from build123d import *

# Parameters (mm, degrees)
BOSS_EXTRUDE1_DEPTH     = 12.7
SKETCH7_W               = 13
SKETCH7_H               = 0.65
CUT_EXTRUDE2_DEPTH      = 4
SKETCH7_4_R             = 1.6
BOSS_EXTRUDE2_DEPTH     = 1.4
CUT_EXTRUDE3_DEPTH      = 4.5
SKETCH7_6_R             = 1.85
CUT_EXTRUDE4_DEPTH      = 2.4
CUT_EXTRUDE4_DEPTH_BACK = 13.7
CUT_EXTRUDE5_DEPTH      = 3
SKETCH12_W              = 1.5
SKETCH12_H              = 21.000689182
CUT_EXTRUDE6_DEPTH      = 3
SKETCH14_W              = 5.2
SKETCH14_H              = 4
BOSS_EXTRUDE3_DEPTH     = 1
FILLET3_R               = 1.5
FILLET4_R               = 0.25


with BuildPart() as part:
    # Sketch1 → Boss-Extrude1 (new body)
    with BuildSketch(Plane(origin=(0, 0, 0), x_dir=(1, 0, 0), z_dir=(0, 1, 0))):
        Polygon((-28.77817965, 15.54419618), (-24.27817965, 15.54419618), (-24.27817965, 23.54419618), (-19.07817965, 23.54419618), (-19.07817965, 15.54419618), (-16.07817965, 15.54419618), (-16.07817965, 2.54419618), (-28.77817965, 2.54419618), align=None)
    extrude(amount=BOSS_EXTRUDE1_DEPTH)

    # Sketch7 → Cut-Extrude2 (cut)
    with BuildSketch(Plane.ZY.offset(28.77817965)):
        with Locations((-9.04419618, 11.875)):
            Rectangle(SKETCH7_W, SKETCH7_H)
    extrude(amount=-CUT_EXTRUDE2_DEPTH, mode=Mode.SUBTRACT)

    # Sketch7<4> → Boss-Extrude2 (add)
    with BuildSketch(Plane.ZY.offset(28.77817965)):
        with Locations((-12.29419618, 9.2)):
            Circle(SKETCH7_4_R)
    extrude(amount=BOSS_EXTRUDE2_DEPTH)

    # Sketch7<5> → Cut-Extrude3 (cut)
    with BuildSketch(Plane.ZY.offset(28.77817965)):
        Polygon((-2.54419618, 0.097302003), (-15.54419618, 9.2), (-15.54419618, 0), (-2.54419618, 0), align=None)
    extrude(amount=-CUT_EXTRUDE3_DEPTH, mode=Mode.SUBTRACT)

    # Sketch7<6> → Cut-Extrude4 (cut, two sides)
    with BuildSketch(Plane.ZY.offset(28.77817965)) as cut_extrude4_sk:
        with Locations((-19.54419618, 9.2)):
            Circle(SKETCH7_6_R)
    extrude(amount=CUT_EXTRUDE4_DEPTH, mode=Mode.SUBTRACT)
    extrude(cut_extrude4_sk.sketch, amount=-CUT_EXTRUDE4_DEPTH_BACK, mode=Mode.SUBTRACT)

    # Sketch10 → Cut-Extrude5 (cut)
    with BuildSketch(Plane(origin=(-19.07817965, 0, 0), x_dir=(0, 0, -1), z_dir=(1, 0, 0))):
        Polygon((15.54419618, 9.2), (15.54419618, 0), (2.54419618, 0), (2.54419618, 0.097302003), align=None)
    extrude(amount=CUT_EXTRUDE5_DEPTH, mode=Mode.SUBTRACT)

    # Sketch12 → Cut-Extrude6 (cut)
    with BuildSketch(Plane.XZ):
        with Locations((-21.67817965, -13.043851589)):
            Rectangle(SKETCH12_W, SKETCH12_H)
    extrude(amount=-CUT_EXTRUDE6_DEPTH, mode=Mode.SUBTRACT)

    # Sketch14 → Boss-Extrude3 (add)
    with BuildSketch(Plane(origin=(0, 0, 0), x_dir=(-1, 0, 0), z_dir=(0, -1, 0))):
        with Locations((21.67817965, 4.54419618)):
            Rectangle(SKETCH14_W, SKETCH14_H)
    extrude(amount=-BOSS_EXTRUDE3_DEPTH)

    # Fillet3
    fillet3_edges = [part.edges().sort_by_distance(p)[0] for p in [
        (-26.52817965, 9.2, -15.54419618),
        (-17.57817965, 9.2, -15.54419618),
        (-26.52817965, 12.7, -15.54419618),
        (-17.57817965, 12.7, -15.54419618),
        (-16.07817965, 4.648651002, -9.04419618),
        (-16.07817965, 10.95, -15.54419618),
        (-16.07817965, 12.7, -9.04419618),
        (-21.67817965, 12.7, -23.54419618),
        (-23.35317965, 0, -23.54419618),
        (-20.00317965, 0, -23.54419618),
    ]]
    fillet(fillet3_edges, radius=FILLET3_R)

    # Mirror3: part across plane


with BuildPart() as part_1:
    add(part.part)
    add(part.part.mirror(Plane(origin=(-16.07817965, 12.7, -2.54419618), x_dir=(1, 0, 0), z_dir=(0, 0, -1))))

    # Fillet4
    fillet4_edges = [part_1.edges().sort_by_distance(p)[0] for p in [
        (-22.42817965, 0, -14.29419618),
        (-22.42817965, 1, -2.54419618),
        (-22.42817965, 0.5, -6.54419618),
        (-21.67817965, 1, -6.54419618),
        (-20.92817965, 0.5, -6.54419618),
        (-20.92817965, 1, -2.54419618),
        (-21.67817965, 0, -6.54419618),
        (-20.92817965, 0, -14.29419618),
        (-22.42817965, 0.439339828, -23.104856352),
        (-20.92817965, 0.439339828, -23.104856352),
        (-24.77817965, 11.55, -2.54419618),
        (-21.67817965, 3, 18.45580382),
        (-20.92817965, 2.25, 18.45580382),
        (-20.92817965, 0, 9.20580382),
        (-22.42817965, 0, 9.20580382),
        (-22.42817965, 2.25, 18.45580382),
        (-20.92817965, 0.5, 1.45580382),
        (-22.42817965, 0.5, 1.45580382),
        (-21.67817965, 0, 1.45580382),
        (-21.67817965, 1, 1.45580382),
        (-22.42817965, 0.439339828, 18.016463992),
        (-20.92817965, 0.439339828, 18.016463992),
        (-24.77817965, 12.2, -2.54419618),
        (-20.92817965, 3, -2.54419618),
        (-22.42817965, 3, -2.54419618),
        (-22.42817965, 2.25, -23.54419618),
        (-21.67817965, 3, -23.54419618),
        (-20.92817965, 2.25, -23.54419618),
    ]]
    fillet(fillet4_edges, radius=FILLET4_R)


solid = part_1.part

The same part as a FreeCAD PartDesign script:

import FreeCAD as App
import Part
import Sketcher
from FreeCAD import Vector
Q = App.Units.Quantity


def edges_at(feature, points):
    """Names of the edges that pass closest to the given points."""
    edges = feature.Shape.Edges
    near = lambda p: min(range(len(edges)), key=lambda i: edges[i].distToShape(Part.Vertex(*p))[0])
    return sorted({f"Edge{near(p) + 1}" for p in points})


def add_polygon(sketch, points):
    """Adds a closed chain of lines whose ends are joined by coincident constraints."""
    first, n = sketch.GeometryCount, len(points)
    for a, b in zip(points, points[1:] + points[:1]):
        sketch.addGeometry(Part.LineSegment(App.Vector(*a, 0), App.Vector(*b, 0)), False)
    for i in range(n):
        sketch.addConstraint(Sketcher.Constraint("Coincident", first + i, 2, first + (i + 1) % n, 1))

doc = App.newDocument("Part")
body = doc.addObject("PartDesign::Body", "Body")

# Sketch on XZ plane
sketch1 = body.newObject("Sketcher::SketchObject", "Sketch")
sketch1.AttachmentSupport = (doc.getObject("XZ_Plane"), [""])
sketch1.MapMode = "FlatFace"
add_polygon(sketch1, [(-24.3, -15.5), (-28.8, -15.5), (-28.8, -2.5), (-16.1, -2.5), (-16.1, -15.5), (-19.1, -15.5), (-19.1, -23.5), (-24.3, -23.5)])  # lines 0-7
sketch1.addConstraint(Sketcher.Constraint("Horizontal", 0))
sketch1.addConstraint(Sketcher.Constraint("Vertical", 1))
sketch1.addConstraint(Sketcher.Constraint("Horizontal", 2))
sketch1.addConstraint(Sketcher.Constraint("Vertical", 3))
sketch1.addConstraint(Sketcher.Constraint("Horizontal", 4))
sketch1.addConstraint(Sketcher.Constraint("Vertical", 5))
sketch1.addConstraint(Sketcher.Constraint("Horizontal", 6))
sketch1.addConstraint(Sketcher.Constraint("Vertical", 7))
sketch1.addConstraint(Sketcher.Constraint("Horizontal", 0, 2, 3, 2))
sketch1.addConstraint(Sketcher.Constraint("DistanceX", 4, 2, 4, 1, Q("3 mm")))
sketch1.addConstraint(Sketcher.Constraint("DistanceY", 1, 1, 1, 2, Q("13 mm")))
sketch1.addConstraint(Sketcher.Constraint("DistanceY", 5, 2, 5, 1, Q("8 mm")))
sketch1.addConstraint(Sketcher.Constraint("DistanceX", 0, 2, 0, 1, Q("4.5 mm")))
sketch1.addConstraint(Sketcher.Constraint("DistanceX", 2, 1, 2, 2, Q("12.7 mm")))
sketch1.addConstraint(Sketcher.Constraint("DistanceX", 0, 2, -1, 1, Q("28.77818 mm")))
sketch1.addConstraint(Sketcher.Constraint("DistanceY", 0, 2, -1, 1, Q("15.544196 mm")))
pad1 = body.newObject("PartDesign::Pad", "Pad")
pad1.Profile = sketch1
pad1.Length = 12.7
pad1.Reversed = True

# Sketch on YZ plane
sketch2 = body.newObject("Sketcher::SketchObject", "Sketch001")
sketch2.AttachmentSupport = (doc.getObject("YZ_Plane"), [""])
sketch2.MapMode = "FlatFace"
sketch2.AttachmentOffset = App.Placement(Vector(0, 0, -28.77818), App.Rotation())
add_polygon(sketch2, [(12.2, -15.5), (11.6, -15.5), (11.6, -2.5), (12.2, -2.5)])  # lines 0-3
sketch2.addConstraint(Sketcher.Constraint("Horizontal", 0))
sketch2.addConstraint(Sketcher.Constraint("Vertical", 1))
sketch2.addConstraint(Sketcher.Constraint("Horizontal", 2))
sketch2.addConstraint(Sketcher.Constraint("Vertical", 3))
sketch2.addConstraint(Sketcher.Constraint("DistanceY", 1, 1, 1, 2, Q("13 mm")))
sketch2.addConstraint(Sketcher.Constraint("DistanceX", 0, 2, 0, 1, Q("0.65 mm")))
sketch2.addConstraint(Sketcher.Constraint("DistanceX", -1, 1, 2, 2, Q("12.2 mm")))
sketch2.addConstraint(Sketcher.Constraint("DistanceY", 0, 2, -1, 1, Q("15.544196 mm")))
pocket1 = body.newObject("PartDesign::Pocket", "Pocket")
pocket1.Profile = sketch2
pocket1.Length = 4
pocket1.Reversed = True

# Sketch on YZ plane
sketch3 = body.newObject("Sketcher::SketchObject", "Sketch002")
sketch3.AttachmentSupport = (doc.getObject("YZ_Plane"), [""])
sketch3.MapMode = "FlatFace"
sketch3.AttachmentOffset = App.Placement(Vector(0, 0, -28.77818), App.Rotation())
sketch3.addGeometry(Part.Circle(Vector(9.2, -12.3, 0), Vector(0, 0, 1), 1.6), False)
sketch3.addConstraint(Sketcher.Constraint("Diameter", 0, Q("3.2 mm")))
sketch3.addConstraint(Sketcher.Constraint("DistanceX", -1, 1, 0, 3, Q("9.2 mm")))
sketch3.addConstraint(Sketcher.Constraint("DistanceY", 0, 3, -1, 1, Q("12.294196 mm")))
pad2 = body.newObject("PartDesign::Pad", "Pad001")
pad2.Profile = sketch3
pad2.Length = 1.4
pad2.Reversed = True

# Sketch on YZ plane
sketch4 = body.newObject("Sketcher::SketchObject", "Sketch003")
sketch4.AttachmentSupport = (doc.getObject("YZ_Plane"), [""])
sketch4.MapMode = "FlatFace"
sketch4.AttachmentOffset = App.Placement(Vector(0, 0, -28.77818), App.Rotation())
add_polygon(sketch4, [(0.1, -2.54), (9.2, -15.54), (0, -15.54), (0, -2.54)])  # lines 0-3
sketch4.addConstraint(Sketcher.Constraint("Horizontal", 1))
sketch4.addConstraint(Sketcher.Constraint("Vertical", 2))
sketch4.addConstraint(Sketcher.Constraint("Horizontal", 3))
sketch4.addConstraint(Sketcher.Constraint("PointOnObject", 1, 2, -2))
sketch4.addConstraint(Sketcher.Constraint("DistanceY", 2, 1, 2, 2, Q("13 mm")))
sketch4.addConstraint(Sketcher.Constraint("Angle", 0, Q("-55 deg")))
sketch4.addConstraint(Sketcher.Constraint("DistanceX", 1, 2, 1, 1, Q("9.2 mm")))
sketch4.addConstraint(Sketcher.Constraint("DistanceY", 0, 2, -1, 1, Q("15.544196 mm")))
pocket2 = body.newObject("PartDesign::Pocket", "Pocket001")
pocket2.Profile = sketch4
pocket2.Length = 4.5
pocket2.Reversed = True

# Sketch on YZ plane
sketch5 = body.newObject("Sketcher::SketchObject", "Sketch004")
sketch5.AttachmentSupport = (doc.getObject("YZ_Plane"), [""])
sketch5.MapMode = "FlatFace"
sketch5.AttachmentOffset = App.Placement(Vector(0, 0, -28.77818), App.Rotation())
sketch5.addGeometry(Part.Circle(Vector(9.2, -19.5, 0), Vector(0, 0, 1), 1.9), False)
sketch5.addConstraint(Sketcher.Constraint("Diameter", 0, Q("3.7 mm")))
sketch5.addConstraint(Sketcher.Constraint("DistanceX", -1, 1, 0, 3, Q("9.2 mm")))
sketch5.addConstraint(Sketcher.Constraint("DistanceY", 0, 3, -1, 1, Q("19.544196 mm")))
pocket3 = body.newObject("PartDesign::Pocket", "Pocket002")
pocket3.Profile = sketch5
pocket3.Type = "ThroughAll"
pocket3.Midplane = True

# Sketch on YZ plane
sketch6 = body.newObject("Sketcher::SketchObject", "Sketch005")
sketch6.AttachmentSupport = (doc.getObject("YZ_Plane"), [""])
sketch6.MapMode = "FlatFace"
sketch6.AttachmentOffset = App.Placement(Vector(0, 0, -19.07818), App.Rotation())
add_polygon(sketch6, [(0, -15.54), (9.2, -15.54), (0.1, -2.54), (0, -2.54)])  # lines 0-3
sketch6.addConstraint(Sketcher.Constraint("Horizontal", 0))
sketch6.addConstraint(Sketcher.Constraint("Horizontal", 2))
sketch6.addConstraint(Sketcher.Constraint("Vertical", 3))
sketch6.addConstraint(Sketcher.Constraint("PointOnObject", 2, 2, -2))
sketch6.addConstraint(Sketcher.Constraint("DistanceY", 3, 2, 3, 1, Q("13 mm")))
sketch6.addConstraint(Sketcher.Constraint("Angle", 1, Q("125 deg")))
sketch6.addConstraint(Sketcher.Constraint("DistanceX", 0, 1, 0, 2, Q("9.2 mm")))
sketch6.addConstraint(Sketcher.Constraint("DistanceY", 0, 2, -1, 1, Q("15.544196 mm")))
pocket4 = body.newObject("PartDesign::Pocket", "Pocket003")
pocket4.Profile = sketch6
pocket4.Length = 3
pocket4.Reversed = True

# Sketch on XZ plane
sketch7 = body.newObject("Sketcher::SketchObject", "Sketch006")
sketch7.AttachmentSupport = (doc.getObject("XZ_Plane"), [""])
sketch7.MapMode = "FlatFace"
add_polygon(sketch7, [(-22.4, -2.5), (-22.4, -23.5), (-20.9, -23.5), (-20.9, -2.5)])  # lines 0-3
sketch7.addConstraint(Sketcher.Constraint("Vertical", 0))
sketch7.addConstraint(Sketcher.Constraint("Horizontal", 1))
sketch7.addConstraint(Sketcher.Constraint("Vertical", 2))
sketch7.addConstraint(Sketcher.Constraint("Horizontal", 3))
sketch7.addConstraint(Sketcher.Constraint("DistanceX", 1, 1, 1, 2, Q("1.5 mm")))
sketch7.addConstraint(Sketcher.Constraint("DistanceY", 0, 2, 0, 1, Q("21.000689 mm")))
sketch7.addConstraint(Sketcher.Constraint("DistanceX", 0, 2, -1, 1, Q("22.42818 mm")))
sketch7.addConstraint(Sketcher.Constraint("DistanceY", 0, 2, -1, 1, Q("23.544196 mm")))
pocket5 = body.newObject("PartDesign::Pocket", "Pocket004")
pocket5.Profile = sketch7
pocket5.Length = 3

# Sketch on XZ plane
sketch8 = body.newObject("Sketcher::SketchObject", "Sketch007")
sketch8.AttachmentSupport = (doc.getObject("XZ_Plane"), [""])
sketch8.MapMode = "FlatFace"
add_polygon(sketch8, [(-19.1, -6.5), (-19.1, -2.5), (-24.3, -2.5), (-24.3, -6.5)])  # lines 0-3
sketch8.addConstraint(Sketcher.Constraint("Vertical", 0))
sketch8.addConstraint(Sketcher.Constraint("Horizontal", 1))
sketch8.addConstraint(Sketcher.Constraint("Vertical", 2))
sketch8.addConstraint(Sketcher.Constraint("Horizontal", 3))
sketch8.addConstraint(Sketcher.Constraint("DistanceY", 0, 1, 0, 2, Q("4 mm")))
sketch8.addConstraint(Sketcher.Constraint("DistanceX", 1, 2, 1, 1, Q("5.2 mm")))
sketch8.addConstraint(Sketcher.Constraint("DistanceX", 0, 2, -1, 1, Q("19.07818 mm")))
sketch8.addConstraint(Sketcher.Constraint("DistanceY", 0, 2, -1, 1, Q("2.544196 mm")))
pad3 = body.newObject("PartDesign::Pad", "Pad002")
pad3.Profile = sketch8
pad3.Length = 1
pad3.Reversed = True
doc.recompute()

fillet = body.newObject("PartDesign::Fillet", "Fillet")
fillet.Base = (pad3, edges_at(pad3, [
    (-26.528, 9.2, -15.544),
    (-17.578, 9.2, -15.544),
    (-26.528, 12.7, -15.544),
    (-17.578, 12.7, -15.544),
    (-16.078, 4.649, -9.044),
    (-16.078, 10.95, -15.544),
    (-16.078, 12.7, -9.044),
    (-21.678, 12.7, -23.544),
    (-23.353, 0, -23.544),
    (-20.003, 0, -23.544),
]))
fillet.Radius = 1.5
body2 = doc.addObject("PartDesign::Body", "Body001")
doc.recompute()

body2.BaseFeature = body
doc.recompute()

mirroring = doc.addObject("Part::Mirroring", "Mirroring")
mirroring.Source = body
mirroring.Base = Vector(-16.07818, 12.7, -2.544196)
mirroring.Normal = Vector(0, 0, -1)
body3 = doc.addObject("PartDesign::Body", "Body002")
body3.BaseFeature = mirroring
boolean = body2.newObject("PartDesign::Boolean", "Boolean")
boolean.Type = "Fuse"
boolean.addObjects([body3])
doc.recompute()

fillet2 = body2.newObject("PartDesign::Fillet", "Fillet001")
fillet2.Base = (boolean, edges_at(boolean, [
    (-22.428, 0, -14.294),
    (-22.428, 1, -2.544),
    (-22.428, 0.5, -6.544),
    (-21.678, 1, -6.544),
    (-20.928, 0.5, -6.544),
    (-20.928, 1, -2.544),
    (-21.678, 0, -6.544),
    (-20.928, 0, -14.294),
    (-22.428, 0.439, -23.105),
    (-20.928, 0.439, -23.105),
    (-24.778, 11.55, -2.544),
    (-21.678, 3, 18.456),
    (-20.928, 2.25, 18.456),
    (-20.928, 0, 9.206),
    (-22.428, 0, 9.206),
    (-22.428, 2.25, 18.456),
    (-20.928, 0.5, 1.456),
    (-22.428, 0.5, 1.456),
    (-21.678, 0, 1.456),
    (-21.678, 1, 1.456),
    (-22.428, 0.439, 18.016),
    (-20.928, 0.439, 18.016),
    (-24.778, 12.2, -2.544),
    (-20.928, 3, -2.544),
    (-22.428, 3, -2.544),
    (-22.428, 2.25, -23.544),
    (-21.678, 3, -23.544),
    (-20.928, 2.25, -23.544),
]))
fillet2.Radius = 0.25
mirroring.Visibility = False

doc.recompute()
